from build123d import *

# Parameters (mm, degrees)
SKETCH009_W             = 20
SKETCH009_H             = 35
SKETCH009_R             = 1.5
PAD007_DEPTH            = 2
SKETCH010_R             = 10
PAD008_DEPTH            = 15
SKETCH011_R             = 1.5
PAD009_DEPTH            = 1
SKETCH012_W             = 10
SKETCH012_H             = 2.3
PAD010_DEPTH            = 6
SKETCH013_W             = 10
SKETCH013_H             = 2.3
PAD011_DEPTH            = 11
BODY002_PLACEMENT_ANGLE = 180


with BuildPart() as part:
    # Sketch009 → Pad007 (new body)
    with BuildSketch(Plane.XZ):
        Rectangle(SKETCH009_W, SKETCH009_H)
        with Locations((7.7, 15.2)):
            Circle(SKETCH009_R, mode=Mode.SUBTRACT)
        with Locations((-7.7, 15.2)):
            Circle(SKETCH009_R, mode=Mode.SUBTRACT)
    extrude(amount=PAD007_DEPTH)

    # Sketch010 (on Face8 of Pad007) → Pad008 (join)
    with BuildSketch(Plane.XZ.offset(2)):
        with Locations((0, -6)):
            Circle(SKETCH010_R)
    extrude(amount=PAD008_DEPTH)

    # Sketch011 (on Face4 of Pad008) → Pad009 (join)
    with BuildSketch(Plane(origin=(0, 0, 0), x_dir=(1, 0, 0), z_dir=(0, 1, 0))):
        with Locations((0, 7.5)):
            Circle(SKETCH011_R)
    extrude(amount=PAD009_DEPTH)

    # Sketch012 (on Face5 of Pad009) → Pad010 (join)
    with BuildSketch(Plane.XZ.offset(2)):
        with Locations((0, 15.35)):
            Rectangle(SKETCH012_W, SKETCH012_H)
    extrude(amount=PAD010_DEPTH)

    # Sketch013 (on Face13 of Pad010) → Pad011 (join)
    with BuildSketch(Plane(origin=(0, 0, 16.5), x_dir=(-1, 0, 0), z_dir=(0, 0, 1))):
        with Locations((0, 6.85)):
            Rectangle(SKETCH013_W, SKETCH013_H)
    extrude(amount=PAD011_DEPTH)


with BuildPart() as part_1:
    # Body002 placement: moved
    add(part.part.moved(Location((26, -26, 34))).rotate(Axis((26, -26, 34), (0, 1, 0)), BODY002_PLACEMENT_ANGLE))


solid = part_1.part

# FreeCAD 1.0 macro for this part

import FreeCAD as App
import Part
import Sketcher


def add_polygon(sketch, points):
    """Adds a closed chain of lines whose ends are joined by coincident constraints."""
    first, n = sketch.GeometryCount, len(points)
    for a, b in zip(points, points[1:] + points[:1]):
        sketch.addGeometry(Part.LineSegment(App.Vector(*a, 0), App.Vector(*b, 0)), False)
    for i in range(n):
        sketch.addConstraint(Sketcher.Constraint("Coincident", first + i, 2, first + (i + 1) % n, 1))

doc = App.newDocument("Part")
body = doc.addObject("PartDesign::Body", "Body")

# Sketch on XZ plane
sketch1 = body.newObject("Sketcher::SketchObject", "Sketch")
sketch1.AttachmentSupport = (doc.getObject("XZ_Plane"), [""])
sketch1.MapMode = "FlatFace"
add_polygon(sketch1, [(-10, 17.5), (-10, -17.5), (10, -17.5), (10, 17.5)])  # lines 0-3
sketch1.addGeometry(Part.Circle(App.Vector(-7.7, 15.2, 0), App.Vector(0, 0, 1), 1.5), False)  # 4
sketch1.addGeometry(Part.Circle(App.Vector(7.7, 15.2, 0), App.Vector(0, 0, 1), 1.5), False)  # 5
sketch1.addConstraint(Sketcher.Constraint("Vertical", 0))
sketch1.addConstraint(Sketcher.Constraint("Horizontal", 1))
sketch1.addConstraint(Sketcher.Constraint("Vertical", 2))
sketch1.addConstraint(Sketcher.Constraint("Horizontal", 3))
sketch1.addConstraint(Sketcher.Constraint("Equal", 4, 5))
sketch1.addConstraint(Sketcher.Constraint("Symmetric", 0, 2, 2, 2, -1, 1))
sketch1.addConstraint(Sketcher.Constraint("Symmetric", 4, 3, 5, 3, -2))
sketch1.addConstraint(Sketcher.Constraint("Diameter", 4, 3.0))
sketch1.addConstraint(Sketcher.Constraint("DistanceX", 1, 1, 1, 2, 20.0))
sketch1.addConstraint(Sketcher.Constraint("DistanceY", 0, 2, 0, 1, 35.0))
sketch1.addConstraint(Sketcher.Constraint("DistanceX", 4, 3, -1, 1, 7.7))
sketch1.addConstraint(Sketcher.Constraint("DistanceY", -1, 1, 4, 3, 15.2))
pad1 = body.newObject("PartDesign::Pad", "Pad")
pad1.Profile = sketch1
pad1.Length = 2

# Sketch on XZ plane
sketch2 = body.newObject("Sketcher::SketchObject", "Sketch001")
sketch2.AttachmentSupport = (doc.getObject("XZ_Plane"), [""])
sketch2.MapMode = "FlatFace"
sketch2.AttachmentOffset = App.Placement(App.Vector(0, 0, 2), App.Rotation())
sketch2.addGeometry(Part.Circle(App.Vector(0, -6, 0), App.Vector(0, 0, 1), 10), False)
sketch2.addConstraint(Sketcher.Constraint("PointOnObject", 0, 3, -2))
sketch2.addConstraint(Sketcher.Constraint("Diameter", 0, 20.0))
sketch2.addConstraint(Sketcher.Constraint("DistanceY", 0, 3, -1, 1, 6.0))
pad2 = body.newObject("PartDesign::Pad", "Pad001")
pad2.Profile = sketch2
pad2.Length = 15

# Sketch on XZ plane
sketch3 = body.newObject("Sketcher::SketchObject", "Sketch002")
sketch3.AttachmentSupport = (doc.getObject("XZ_Plane"), [""])
sketch3.MapMode = "FlatFace"
sketch3.addGeometry(Part.Circle(App.Vector(0, -7.5, 0), App.Vector(0, 0, 1), 1.5), False)
sketch3.addConstraint(Sketcher.Constraint("PointOnObject", 0, 3, -2))
sketch3.addConstraint(Sketcher.Constraint("Diameter", 0, 3.0))
sketch3.addConstraint(Sketcher.Constraint("DistanceY", 0, 3, -1, 1, 7.5))
pad3 = body.newObject("PartDesign::Pad", "Pad002")
pad3.Profile = sketch3
pad3.Length = 1
pad3.Reversed = True

# Sketch on XZ plane
sketch4 = body.newObject("Sketcher::SketchObject", "Sketch003")
sketch4.AttachmentSupport = (doc.getObject("XZ_Plane"), [""])
sketch4.MapMode = "FlatFace"
sketch4.AttachmentOffset = App.Placement(App.Vector(0, 0, 2), App.Rotation())
add_polygon(sketch4, [(-5, 16.5), (-5, 14.2), (5, 14.2), (5, 16.5)])  # lines 0-3
sketch4.addConstraint(Sketcher.Constraint("Vertical", 0))
sketch4.addConstraint(Sketcher.Constraint("Horizontal", 1))
sketch4.addConstraint(Sketcher.Constraint("Vertical", 2))
sketch4.addConstraint(Sketcher.Constraint("Horizontal", 3))
sketch4.addConstraint(Sketcher.Constraint("DistanceX", 1, 1, 1, 2, 10.0))
sketch4.addConstraint(Sketcher.Constraint("DistanceY", 0, 2, 0, 1, 2.3))
sketch4.addConstraint(Sketcher.Constraint("DistanceX", 0, 2, -1, 1, 5.0))
sketch4.addConstraint(Sketcher.Constraint("DistanceY", -1, 1, 0, 2, 14.2))
pad4 = body.newObject("PartDesign::Pad", "Pad003")
pad4.Profile = sketch4
pad4.Length = 6

# Sketch on XY plane
sketch5 = body.newObject("Sketcher::SketchObject", "Sketch004")
sketch5.AttachmentSupport = (doc.getObject("XY_Plane"), [""])
sketch5.MapMode = "FlatFace"
sketch5.AttachmentOffset = App.Placement(App.Vector(0, 0, 16.5), App.Rotation())
add_polygon(sketch5, [(5, -8), (5, -5.7), (-5, -5.7), (-5, -8)])  # lines 0-3
sketch5.addConstraint(Sketcher.Constraint("Vertical", 0))
sketch5.addConstraint(Sketcher.Constraint("Horizontal", 1))
sketch5.addConstraint(Sketcher.Constraint("Vertical", 2))
sketch5.addConstraint(Sketcher.Constraint("Horizontal", 3))
sketch5.addConstraint(Sketcher.Constraint("DistanceX", 1, 2, 1, 1, 10.0))
sketch5.addConstraint(Sketcher.Constraint("DistanceY", 0, 1, 0, 2, 2.3))
sketch5.addConstraint(Sketcher.Constraint("DistanceX", -1, 1, 0, 2, 5.0))
sketch5.addConstraint(Sketcher.Constraint("DistanceY", 2, 2, -1, 1, 8.0))
pad5 = body.newObject("PartDesign::Pad", "Pad004")
pad5.Profile = sketch5
pad5.Length = 11
body2 = doc.addObject("PartDesign::Body", "Body001")
doc.recompute()

body.Placement = App.Placement(App.Vector(26, -26, 34), App.Rotation(App.Vector(0, 1, 0), 180))
boolean = body2.newObject("PartDesign::Boolean", "Boolean")
boolean.Type = "Fuse"
boolean.addObjects([body])

doc.recompute()
